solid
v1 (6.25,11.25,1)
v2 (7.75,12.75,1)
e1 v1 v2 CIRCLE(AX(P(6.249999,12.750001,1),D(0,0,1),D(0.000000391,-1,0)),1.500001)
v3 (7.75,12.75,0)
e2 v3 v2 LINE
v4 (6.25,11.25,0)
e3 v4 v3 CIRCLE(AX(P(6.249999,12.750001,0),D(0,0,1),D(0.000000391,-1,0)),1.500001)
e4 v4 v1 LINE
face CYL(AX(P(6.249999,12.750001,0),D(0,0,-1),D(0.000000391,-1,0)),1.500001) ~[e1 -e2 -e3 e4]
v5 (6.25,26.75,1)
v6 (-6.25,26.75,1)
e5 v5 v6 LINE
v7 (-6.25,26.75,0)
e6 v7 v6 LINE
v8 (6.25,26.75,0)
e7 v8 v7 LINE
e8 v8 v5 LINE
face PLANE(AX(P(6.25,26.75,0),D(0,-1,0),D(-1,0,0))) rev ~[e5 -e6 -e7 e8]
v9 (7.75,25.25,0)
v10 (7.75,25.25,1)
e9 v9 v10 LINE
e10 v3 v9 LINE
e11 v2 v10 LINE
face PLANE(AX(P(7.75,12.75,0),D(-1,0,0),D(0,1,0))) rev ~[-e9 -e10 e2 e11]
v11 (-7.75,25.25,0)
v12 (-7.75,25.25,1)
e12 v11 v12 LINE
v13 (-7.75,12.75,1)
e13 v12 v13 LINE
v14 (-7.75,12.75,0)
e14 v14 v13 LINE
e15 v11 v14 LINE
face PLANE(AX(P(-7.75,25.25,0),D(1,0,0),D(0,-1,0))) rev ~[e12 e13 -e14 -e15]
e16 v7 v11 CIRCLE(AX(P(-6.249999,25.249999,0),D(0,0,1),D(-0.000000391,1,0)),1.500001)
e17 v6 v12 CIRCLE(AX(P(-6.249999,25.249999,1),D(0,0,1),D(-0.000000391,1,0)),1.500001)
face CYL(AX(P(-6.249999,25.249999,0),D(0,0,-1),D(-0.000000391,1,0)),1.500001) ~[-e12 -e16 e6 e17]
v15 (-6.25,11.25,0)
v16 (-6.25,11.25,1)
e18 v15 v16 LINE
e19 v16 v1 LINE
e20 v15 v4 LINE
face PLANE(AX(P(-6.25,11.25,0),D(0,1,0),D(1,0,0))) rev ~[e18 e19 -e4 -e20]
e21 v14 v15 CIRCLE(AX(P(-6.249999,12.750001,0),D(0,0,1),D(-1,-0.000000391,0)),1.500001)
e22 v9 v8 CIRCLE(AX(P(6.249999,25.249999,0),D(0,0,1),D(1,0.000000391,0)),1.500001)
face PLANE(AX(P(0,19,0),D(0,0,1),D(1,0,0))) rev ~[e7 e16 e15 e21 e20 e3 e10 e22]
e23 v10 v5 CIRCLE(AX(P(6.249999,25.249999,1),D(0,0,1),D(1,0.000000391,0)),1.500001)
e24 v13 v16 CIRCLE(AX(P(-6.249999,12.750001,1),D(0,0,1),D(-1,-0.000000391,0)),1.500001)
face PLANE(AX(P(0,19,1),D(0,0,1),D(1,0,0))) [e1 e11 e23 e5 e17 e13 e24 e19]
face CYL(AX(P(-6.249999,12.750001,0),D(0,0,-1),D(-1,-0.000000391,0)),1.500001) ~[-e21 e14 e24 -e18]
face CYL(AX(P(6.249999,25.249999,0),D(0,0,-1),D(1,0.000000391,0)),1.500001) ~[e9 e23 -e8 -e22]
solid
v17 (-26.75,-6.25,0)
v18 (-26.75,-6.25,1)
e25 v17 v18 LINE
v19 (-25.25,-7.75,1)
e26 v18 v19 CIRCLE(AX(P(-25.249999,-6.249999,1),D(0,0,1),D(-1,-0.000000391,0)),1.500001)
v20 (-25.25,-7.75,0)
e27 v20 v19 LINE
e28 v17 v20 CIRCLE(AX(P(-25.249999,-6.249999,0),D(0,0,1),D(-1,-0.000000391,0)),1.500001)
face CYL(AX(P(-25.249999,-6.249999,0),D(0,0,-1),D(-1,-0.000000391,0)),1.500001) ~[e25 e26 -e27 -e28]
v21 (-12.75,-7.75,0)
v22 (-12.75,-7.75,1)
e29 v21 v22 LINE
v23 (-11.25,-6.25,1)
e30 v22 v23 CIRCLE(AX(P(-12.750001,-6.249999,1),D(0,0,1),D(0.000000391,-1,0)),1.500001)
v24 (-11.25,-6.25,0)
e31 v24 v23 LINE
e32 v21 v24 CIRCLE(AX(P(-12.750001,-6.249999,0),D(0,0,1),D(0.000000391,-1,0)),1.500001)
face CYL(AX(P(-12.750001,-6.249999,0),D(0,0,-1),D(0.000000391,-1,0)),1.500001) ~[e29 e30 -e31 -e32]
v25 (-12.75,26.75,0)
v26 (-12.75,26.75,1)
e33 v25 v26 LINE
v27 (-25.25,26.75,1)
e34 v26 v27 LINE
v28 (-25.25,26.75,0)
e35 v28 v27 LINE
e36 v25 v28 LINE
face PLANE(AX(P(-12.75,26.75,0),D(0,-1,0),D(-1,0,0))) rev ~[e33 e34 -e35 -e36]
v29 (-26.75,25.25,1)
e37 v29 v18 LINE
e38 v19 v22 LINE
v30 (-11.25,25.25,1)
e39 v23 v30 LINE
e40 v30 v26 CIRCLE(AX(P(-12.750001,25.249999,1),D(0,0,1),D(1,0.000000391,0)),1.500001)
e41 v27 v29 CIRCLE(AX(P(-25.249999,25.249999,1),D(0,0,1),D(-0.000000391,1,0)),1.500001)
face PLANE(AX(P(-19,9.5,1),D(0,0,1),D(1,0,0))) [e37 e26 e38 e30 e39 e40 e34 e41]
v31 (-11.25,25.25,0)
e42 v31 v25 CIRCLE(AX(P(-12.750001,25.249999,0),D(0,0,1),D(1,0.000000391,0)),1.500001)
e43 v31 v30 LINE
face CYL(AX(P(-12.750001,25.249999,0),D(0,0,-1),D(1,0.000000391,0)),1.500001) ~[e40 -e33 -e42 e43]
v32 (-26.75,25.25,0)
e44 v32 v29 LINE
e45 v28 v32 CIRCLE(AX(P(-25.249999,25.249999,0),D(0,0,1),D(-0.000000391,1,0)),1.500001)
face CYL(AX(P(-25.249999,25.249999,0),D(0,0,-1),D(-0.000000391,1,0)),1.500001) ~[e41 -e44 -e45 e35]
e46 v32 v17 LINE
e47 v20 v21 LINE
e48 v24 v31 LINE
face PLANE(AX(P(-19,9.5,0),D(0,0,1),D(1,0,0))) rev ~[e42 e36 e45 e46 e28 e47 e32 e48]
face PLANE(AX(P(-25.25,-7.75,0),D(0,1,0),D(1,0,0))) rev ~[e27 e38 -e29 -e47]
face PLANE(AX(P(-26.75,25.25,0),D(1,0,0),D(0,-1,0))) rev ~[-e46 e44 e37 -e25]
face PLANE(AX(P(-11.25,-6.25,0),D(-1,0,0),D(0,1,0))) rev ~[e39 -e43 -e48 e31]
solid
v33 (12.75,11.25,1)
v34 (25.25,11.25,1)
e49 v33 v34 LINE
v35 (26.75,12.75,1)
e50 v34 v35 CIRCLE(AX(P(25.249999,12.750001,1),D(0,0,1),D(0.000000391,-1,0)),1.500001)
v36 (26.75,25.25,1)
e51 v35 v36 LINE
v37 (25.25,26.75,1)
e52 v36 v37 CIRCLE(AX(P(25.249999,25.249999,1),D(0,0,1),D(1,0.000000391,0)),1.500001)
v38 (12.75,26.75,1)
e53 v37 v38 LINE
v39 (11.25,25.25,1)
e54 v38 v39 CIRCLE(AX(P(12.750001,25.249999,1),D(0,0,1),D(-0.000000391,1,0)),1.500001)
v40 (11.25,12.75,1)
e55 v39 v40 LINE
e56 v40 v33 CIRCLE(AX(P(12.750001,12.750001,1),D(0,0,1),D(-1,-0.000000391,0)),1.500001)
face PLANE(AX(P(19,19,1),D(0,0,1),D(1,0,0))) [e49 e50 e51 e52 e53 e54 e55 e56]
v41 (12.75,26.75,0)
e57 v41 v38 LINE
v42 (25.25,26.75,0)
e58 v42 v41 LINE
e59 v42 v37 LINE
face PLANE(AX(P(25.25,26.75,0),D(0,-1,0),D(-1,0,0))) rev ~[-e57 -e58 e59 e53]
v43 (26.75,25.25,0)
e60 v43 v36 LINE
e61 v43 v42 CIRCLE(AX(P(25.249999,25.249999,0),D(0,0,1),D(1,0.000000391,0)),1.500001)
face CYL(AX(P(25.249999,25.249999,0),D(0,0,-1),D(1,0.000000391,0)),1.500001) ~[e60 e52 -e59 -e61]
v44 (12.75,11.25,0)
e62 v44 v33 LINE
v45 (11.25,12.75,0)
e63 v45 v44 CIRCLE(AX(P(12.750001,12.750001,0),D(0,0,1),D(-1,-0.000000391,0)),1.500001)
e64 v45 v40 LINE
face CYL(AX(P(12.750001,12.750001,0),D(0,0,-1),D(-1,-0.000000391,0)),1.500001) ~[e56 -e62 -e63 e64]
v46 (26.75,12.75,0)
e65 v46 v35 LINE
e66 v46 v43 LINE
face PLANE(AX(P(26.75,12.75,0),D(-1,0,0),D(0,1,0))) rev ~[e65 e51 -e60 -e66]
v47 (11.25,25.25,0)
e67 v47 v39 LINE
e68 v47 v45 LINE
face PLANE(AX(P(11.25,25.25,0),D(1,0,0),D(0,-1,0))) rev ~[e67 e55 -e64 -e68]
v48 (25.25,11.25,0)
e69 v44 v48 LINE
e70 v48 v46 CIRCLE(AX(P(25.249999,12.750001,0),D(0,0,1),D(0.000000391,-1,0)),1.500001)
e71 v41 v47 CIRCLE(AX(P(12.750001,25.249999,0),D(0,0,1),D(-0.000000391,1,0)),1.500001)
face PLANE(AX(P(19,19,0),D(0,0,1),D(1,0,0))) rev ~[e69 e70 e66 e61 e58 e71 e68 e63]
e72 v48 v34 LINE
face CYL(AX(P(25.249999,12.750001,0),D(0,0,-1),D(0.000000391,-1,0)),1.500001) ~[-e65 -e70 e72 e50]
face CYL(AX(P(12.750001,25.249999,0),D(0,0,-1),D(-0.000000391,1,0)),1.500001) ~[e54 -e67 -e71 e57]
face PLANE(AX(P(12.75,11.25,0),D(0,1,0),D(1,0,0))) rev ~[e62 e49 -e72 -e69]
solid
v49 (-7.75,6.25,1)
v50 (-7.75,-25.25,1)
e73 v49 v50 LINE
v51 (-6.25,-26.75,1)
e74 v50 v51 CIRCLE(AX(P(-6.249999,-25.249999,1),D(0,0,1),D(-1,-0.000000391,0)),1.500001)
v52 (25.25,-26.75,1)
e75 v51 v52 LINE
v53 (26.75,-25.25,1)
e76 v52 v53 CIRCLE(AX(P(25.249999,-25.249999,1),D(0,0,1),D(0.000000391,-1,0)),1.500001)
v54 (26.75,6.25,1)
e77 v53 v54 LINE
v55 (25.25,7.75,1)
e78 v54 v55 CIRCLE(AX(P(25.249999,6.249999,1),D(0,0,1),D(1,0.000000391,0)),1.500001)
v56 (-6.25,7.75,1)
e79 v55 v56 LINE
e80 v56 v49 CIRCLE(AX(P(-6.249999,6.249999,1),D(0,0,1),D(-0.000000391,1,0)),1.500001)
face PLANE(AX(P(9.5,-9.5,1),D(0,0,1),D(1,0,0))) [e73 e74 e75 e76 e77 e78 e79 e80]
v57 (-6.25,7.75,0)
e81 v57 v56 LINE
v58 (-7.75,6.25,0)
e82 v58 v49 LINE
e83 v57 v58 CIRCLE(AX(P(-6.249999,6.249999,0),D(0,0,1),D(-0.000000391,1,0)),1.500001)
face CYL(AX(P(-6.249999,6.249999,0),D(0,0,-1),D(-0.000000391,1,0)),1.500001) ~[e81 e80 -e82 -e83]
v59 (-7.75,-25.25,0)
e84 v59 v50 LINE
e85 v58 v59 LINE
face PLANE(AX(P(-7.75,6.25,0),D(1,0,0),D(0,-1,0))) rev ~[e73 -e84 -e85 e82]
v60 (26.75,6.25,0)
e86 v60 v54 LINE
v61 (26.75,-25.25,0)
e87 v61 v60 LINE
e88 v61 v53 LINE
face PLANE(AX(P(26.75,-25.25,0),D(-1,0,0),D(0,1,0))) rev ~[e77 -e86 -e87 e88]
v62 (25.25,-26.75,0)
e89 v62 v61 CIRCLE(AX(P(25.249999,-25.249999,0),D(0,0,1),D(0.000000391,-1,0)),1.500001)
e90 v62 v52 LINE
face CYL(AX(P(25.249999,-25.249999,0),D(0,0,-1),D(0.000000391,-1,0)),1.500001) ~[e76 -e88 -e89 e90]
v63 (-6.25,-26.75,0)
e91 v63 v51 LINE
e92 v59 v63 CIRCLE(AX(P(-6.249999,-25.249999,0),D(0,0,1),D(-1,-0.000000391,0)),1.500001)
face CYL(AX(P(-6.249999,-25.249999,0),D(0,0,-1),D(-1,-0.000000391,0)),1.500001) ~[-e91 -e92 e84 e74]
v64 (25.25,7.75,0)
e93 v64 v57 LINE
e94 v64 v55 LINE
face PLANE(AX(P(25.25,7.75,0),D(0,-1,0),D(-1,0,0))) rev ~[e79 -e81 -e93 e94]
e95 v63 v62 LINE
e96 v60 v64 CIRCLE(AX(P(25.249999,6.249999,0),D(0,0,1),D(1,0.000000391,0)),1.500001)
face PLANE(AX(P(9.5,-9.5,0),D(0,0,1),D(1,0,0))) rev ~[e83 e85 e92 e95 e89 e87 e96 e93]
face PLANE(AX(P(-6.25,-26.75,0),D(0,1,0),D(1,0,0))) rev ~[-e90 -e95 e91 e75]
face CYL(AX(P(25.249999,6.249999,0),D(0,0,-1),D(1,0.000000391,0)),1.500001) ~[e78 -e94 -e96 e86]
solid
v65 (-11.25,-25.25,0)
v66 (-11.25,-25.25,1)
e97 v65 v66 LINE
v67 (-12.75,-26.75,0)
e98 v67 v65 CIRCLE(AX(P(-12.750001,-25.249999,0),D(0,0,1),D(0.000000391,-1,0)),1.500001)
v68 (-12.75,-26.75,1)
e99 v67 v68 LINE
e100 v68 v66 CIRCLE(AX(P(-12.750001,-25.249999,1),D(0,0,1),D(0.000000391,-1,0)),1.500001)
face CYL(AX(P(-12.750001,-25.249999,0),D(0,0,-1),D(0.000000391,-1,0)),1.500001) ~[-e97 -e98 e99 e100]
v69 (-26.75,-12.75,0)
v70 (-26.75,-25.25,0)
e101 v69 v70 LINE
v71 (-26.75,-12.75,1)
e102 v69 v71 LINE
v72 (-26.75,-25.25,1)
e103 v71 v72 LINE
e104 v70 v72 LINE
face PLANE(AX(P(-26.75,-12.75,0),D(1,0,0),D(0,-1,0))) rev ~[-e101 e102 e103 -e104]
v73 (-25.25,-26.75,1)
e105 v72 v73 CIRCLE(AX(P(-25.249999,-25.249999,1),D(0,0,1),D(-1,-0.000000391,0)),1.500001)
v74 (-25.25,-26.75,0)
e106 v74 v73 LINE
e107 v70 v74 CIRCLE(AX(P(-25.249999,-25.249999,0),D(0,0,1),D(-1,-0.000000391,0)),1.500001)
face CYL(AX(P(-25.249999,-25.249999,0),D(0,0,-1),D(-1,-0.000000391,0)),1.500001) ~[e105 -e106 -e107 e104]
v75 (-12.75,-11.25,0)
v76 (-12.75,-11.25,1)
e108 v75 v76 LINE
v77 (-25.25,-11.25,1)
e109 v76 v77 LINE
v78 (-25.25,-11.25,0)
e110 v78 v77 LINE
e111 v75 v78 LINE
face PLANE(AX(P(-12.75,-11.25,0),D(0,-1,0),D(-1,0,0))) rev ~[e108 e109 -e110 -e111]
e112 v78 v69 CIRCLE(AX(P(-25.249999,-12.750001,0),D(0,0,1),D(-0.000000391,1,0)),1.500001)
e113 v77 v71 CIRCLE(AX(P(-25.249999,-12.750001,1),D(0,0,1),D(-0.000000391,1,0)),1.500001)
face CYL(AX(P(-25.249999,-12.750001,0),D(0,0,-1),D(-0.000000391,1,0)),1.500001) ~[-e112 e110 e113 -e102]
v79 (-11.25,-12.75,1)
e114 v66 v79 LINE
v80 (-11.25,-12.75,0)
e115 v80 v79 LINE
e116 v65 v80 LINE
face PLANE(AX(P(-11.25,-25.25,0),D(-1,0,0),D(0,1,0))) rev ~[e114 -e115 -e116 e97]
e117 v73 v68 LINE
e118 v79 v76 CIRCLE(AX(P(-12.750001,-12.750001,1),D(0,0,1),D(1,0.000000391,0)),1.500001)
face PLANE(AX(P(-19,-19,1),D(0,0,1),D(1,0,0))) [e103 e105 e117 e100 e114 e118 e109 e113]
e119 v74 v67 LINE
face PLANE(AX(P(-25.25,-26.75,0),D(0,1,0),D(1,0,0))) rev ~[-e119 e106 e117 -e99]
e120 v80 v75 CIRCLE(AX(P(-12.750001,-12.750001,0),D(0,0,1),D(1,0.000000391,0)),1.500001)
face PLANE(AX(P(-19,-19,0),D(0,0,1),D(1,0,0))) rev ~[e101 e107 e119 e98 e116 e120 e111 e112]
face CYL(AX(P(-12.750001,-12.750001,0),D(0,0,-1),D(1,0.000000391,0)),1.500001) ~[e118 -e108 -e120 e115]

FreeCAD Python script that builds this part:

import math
import FreeCAD as App
import Part
import Sketcher
from FreeCAD import Vector
Q = App.Units.Quantity

doc = App.newDocument("Part")
body = doc.addObject("PartDesign::Body", "Body")
body.AllowCompound = True

sketch1 = doc.addObject("Sketcher::SketchObject", "Sketch")
body.addObject(sketch1)
sketch1.AttachmentSupport = (doc.XY_Plane, [""])
sketch1.MapMode = "FlatFace"
sketch1.addGeometry([
    Part.LineSegment(Vector(-12.8, -11.2, 0), Vector(-25.2, -11.2, 0)),
    Part.ArcOfCircle(Part.Circle(Vector(-25.2, -12.8, 0), Vector(0, 0, 1), 1.5), math.radians(90), math.radians(180)),
    Part.LineSegment(Vector(-26.8, -12.8, 0), Vector(-26.8, -25.2, 0)),
    Part.ArcOfCircle(Part.Circle(Vector(-25.2, -25.2, 0), Vector(0, 0, 1), 1.5), math.radians(-180), math.radians(-90)),
    Part.LineSegment(Vector(-25.2, -26.8, 0), Vector(-12.8, -26.8, 0)),
    Part.ArcOfCircle(Part.Circle(Vector(-12.8, -25.2, 0), Vector(0, 0, 1), 1.5), math.radians(-90), math.radians(0)),
    Part.LineSegment(Vector(-11.2, -25.2, 0), Vector(-11.2, -12.8, 0)),
    Part.ArcOfCircle(Part.Circle(Vector(-12.8, -12.8, 0), Vector(0, 0, 1), 1.5), math.radians(0), math.radians(90)),
    Part.ArcOfCircle(Part.Circle(Vector(-6.2, -25.2, 0), Vector(0, 0, 1), 1.5), math.radians(-180), math.radians(-90)),
    Part.LineSegment(Vector(-6.2, -26.8, 0), Vector(25.2, -26.8, 0)),
    Part.ArcOfCircle(Part.Circle(Vector(25.2, -25.2, 0), Vector(0, 0, 1), 1.5), math.radians(-90), math.radians(0)),
    Part.LineSegment(Vector(26.8, -25.2, 0), Vector(26.8, 6.2, 0)),
    Part.ArcOfCircle(Part.Circle(Vector(25.2, 6.2, 0), Vector(0, 0, 1), 1.5), math.radians(0), math.radians(90)),
    Part.LineSegment(Vector(25.2, 7.8, 0), Vector(-6.2, 7.8, 0)),
    Part.ArcOfCircle(Part.Circle(Vector(-6.2, 6.2, 0), Vector(0, 0, 1), 1.5), math.radians(90), math.radians(180)),
    Part.LineSegment(Vector(-7.8, 6.2, 0), Vector(-7.8, -25.2, 0)),
    Part.ArcOfCircle(Part.Circle(Vector(25.2, 25.2, 0), Vector(0, 0, 1), 1.5), math.radians(0), math.radians(90)),
    Part.LineSegment(Vector(25.2, 26.8, 0), Vector(12.8, 26.8, 0)),
    Part.ArcOfCircle(Part.Circle(Vector(12.8, 25.2, 0), Vector(0, 0, 1), 1.5), math.radians(90), math.radians(180)),
    Part.LineSegment(Vector(11.2, 25.2, 0), Vector(11.2, 12.8, 0)),
    Part.ArcOfCircle(Part.Circle(Vector(12.8, 12.8, 0), Vector(0, 0, 1), 1.5), math.radians(-180), math.radians(-90)),
    Part.LineSegment(Vector(12.8, 11.2, 0), Vector(25.2, 11.2, 0)),
    Part.ArcOfCircle(Part.Circle(Vector(25.2, 12.8, 0), Vector(0, 0, 1), 1.5), math.radians(-90), math.radians(0)),
    Part.LineSegment(Vector(26.8, 12.8, 0), Vector(26.8, 25.2, 0)),
    Part.LineSegment(Vector(-7.8, 25.2, 0), Vector(-7.8, 12.8, 0)),
    Part.ArcOfCircle(Part.Circle(Vector(-6.2, 12.8, 0), Vector(0, 0, 1), 1.5), math.radians(-180), math.radians(-90)),
    Part.LineSegment(Vector(-6.2, 11.2, 0), Vector(6.2, 11.2, 0)),
    Part.ArcOfCircle(Part.Circle(Vector(6.2, 12.8, 0), Vector(0, 0, 1), 1.5), math.radians(-90), math.radians(0)),
    Part.LineSegment(Vector(7.8, 12.8, 0), Vector(7.8, 25.2, 0)),
    Part.ArcOfCircle(Part.Circle(Vector(6.2, 25.2, 0), Vector(0, 0, 1), 1.5), math.radians(0), math.radians(90)),
    Part.LineSegment(Vector(6.2, 26.8, 0), Vector(-6.2, 26.8, 0)),
    Part.ArcOfCircle(Part.Circle(Vector(-6.2, 25.2, 0), Vector(0, 0, 1), 1.5), math.radians(90), math.radians(180)),
    Part.ArcOfCircle(Part.Circle(Vector(-25.2, 25.2, 0), Vector(0, 0, 1), 1.5), math.radians(90), math.radians(180)),
    Part.LineSegment(Vector(-26.8, 25.2, 0), Vector(-26.8, -6.2, 0)),
    Part.ArcOfCircle(Part.Circle(Vector(-25.2, -6.2, 0), Vector(0, 0, 1), 1.5), math.radians(-180), math.radians(-90)),
    Part.LineSegment(Vector(-25.2, -7.8, 0), Vector(-12.8, -7.8, 0)),
    Part.ArcOfCircle(Part.Circle(Vector(-12.8, -6.2, 0), Vector(0, 0, 1), 1.5), math.radians(-90), math.radians(0)),
    Part.LineSegment(Vector(-11.2, -6.2, 0), Vector(-11.2, 25.2, 0)),
    Part.ArcOfCircle(Part.Circle(Vector(-12.8, 25.2, 0), Vector(0, 0, 1), 1.5), math.radians(0), math.radians(90)),
    Part.LineSegment(Vector(-12.8, 26.8, 0), Vector(-25.2, 26.8, 0)),
], False)
sketch1.addConstraint([
    Sketcher.Constraint("Tangent", 0, 2, 1, 1),
    Sketcher.Constraint("Tangent", 1, 2, 2, 1),
    Sketcher.Constraint("Tangent", 2, 2, 3, 1),
    Sketcher.Constraint("Tangent", 3, 2, 4, 1),
    Sketcher.Constraint("Tangent", 4, 2, 5, 1),
    Sketcher.Constraint("Tangent", 5, 2, 6, 1),
    Sketcher.Constraint("Tangent", 6, 2, 7, 1),
    Sketcher.Constraint("Tangent", 7, 2, 0, 1),
    Sketcher.Constraint("Tangent", 8, 2, 9, 1),
    Sketcher.Constraint("Tangent", 9, 2, 10, 1),
    Sketcher.Constraint("Tangent", 10, 2, 11, 1),
    Sketcher.Constraint("Tangent", 11, 2, 12, 1),
    Sketcher.Constraint("Tangent", 12, 2, 13, 1),
    Sketcher.Constraint("Tangent", 13, 2, 14, 1),
    Sketcher.Constraint("Tangent", 14, 2, 15, 1),
    Sketcher.Constraint("Tangent", 15, 2, 8, 1),
    Sketcher.Constraint("Tangent", 16, 2, 17, 1),
    Sketcher.Constraint("Tangent", 17, 2, 18, 1),
    Sketcher.Constraint("Tangent", 18, 2, 19, 1),
    Sketcher.Constraint("Tangent", 19, 2, 20, 1),
    Sketcher.Constraint("Tangent", 20, 2, 21, 1),
    Sketcher.Constraint("Tangent", 21, 2, 22, 1),
    Sketcher.Constraint("Tangent", 22, 2, 23, 1),
    Sketcher.Constraint("Tangent", 23, 2, 16, 1),
    Sketcher.Constraint("Tangent", 24, 2, 25, 1),
    Sketcher.Constraint("Tangent", 25, 2, 26, 1),
    Sketcher.Constraint("Tangent", 26, 2, 27, 1),
    Sketcher.Constraint("Tangent", 27, 2, 28, 1),
    Sketcher.Constraint("Tangent", 28, 2, 29, 1),
    Sketcher.Constraint("Tangent", 29, 2, 30, 1),
    Sketcher.Constraint("Tangent", 30, 2, 31, 1),
    Sketcher.Constraint("Tangent", 31, 2, 24, 1),
    Sketcher.Constraint("Tangent", 32, 2, 33, 1),
    Sketcher.Constraint("Tangent", 33, 2, 34, 1),
    Sketcher.Constraint("Tangent", 34, 2, 35, 1),
    Sketcher.Constraint("Tangent", 35, 2, 36, 1),
    Sketcher.Constraint("Tangent", 36, 2, 37, 1),
    Sketcher.Constraint("Tangent", 37, 2, 38, 1),
    Sketcher.Constraint("Tangent", 38, 2, 39, 1),
    Sketcher.Constraint("Tangent", 39, 2, 32, 1),
    Sketcher.Constraint("Horizontal", 0),
    Sketcher.Constraint("Vertical", 2),
    Sketcher.Constraint("Horizontal", 4),
    Sketcher.Constraint("Vertical", 6),
    Sketcher.Constraint("Horizontal", 9),
    Sketcher.Constraint("Vertical", 11),
    Sketcher.Constraint("Horizontal", 13),
    Sketcher.Constraint("Vertical", 15),
    Sketcher.Constraint("Horizontal", 17),
    Sketcher.Constraint("Vertical", 19),
    Sketcher.Constraint("Horizontal", 21),
    Sketcher.Constraint("Vertical", 23),
    Sketcher.Constraint("Vertical", 24),
    Sketcher.Constraint("Horizontal", 26),
    Sketcher.Constraint("Vertical", 28),
    Sketcher.Constraint("Horizontal", 30),
    Sketcher.Constraint("Vertical", 33),
    Sketcher.Constraint("Horizontal", 35),
    Sketcher.Constraint("Vertical", 37),
    Sketcher.Constraint("Horizontal", 39),
    Sketcher.Constraint("Equal", 1, 3),
    Sketcher.Constraint("Equal", 3, 5),
    Sketcher.Constraint("Equal", 5, 7),
    Sketcher.Constraint("Equal", 7, 8),
    Sketcher.Constraint("Equal", 8, 10),
    Sketcher.Constraint("Equal", 10, 12),
    Sketcher.Constraint("Equal", 12, 14),
    Sketcher.Constraint("Equal", 14, 16),
    Sketcher.Constraint("Equal", 16, 18),
    Sketcher.Constraint("Equal", 18, 20),
    Sketcher.Constraint("Equal", 20, 22),
    Sketcher.Constraint("Equal", 22, 25),
    Sketcher.Constraint("Equal", 25, 27),
    Sketcher.Constraint("Equal", 27, 29),
    Sketcher.Constraint("Equal", 29, 31),
    Sketcher.Constraint("Equal", 31, 32),
    Sketcher.Constraint("Equal", 32, 34),
    Sketcher.Constraint("Equal", 34, 36),
    Sketcher.Constraint("Equal", 36, 38),
    Sketcher.Constraint("Symmetric", 3, 3, 16, 3, -1, 1),
    Sketcher.Constraint("Symmetric", 7, 3, 20, 3, -1, 1),
    Sketcher.Constraint("Symmetric", 8, 3, 29, 3, -1, 1),
    Sketcher.Constraint("Symmetric", 10, 3, 32, 3, -1, 1),
    Sketcher.Constraint("Symmetric", 3, 3, 10, 3, -2),
    Sketcher.Constraint("Horizontal", 22, 3, 25, 3),
    Sketcher.Constraint("Vertical", 14, 3, 25, 3),
    Sketcher.Constraint("Vertical", 7, 3, 36, 3),
    Sketcher.Constraint("Equal", 21, 26),
    Sketcher.Constraint("Equal", 39, 2),
    Sketcher.Constraint("Equal", 13, 11),
    Sketcher.Constraint("Equal", 15, 33),
    Sketcher.Constraint("Radius", 1, Q("1.500001 mm")),
    Sketcher.Constraint("DistanceX", 0, 2, 0, 1, Q("12.5 mm")),
    Sketcher.Constraint("DistanceX", 9, 1, 9, 2, Q("31.5 mm")),
    Sketcher.Constraint("DistanceY", 12, 3, 16, 3, Q("19 mm")),
])
pad1 = doc.addObject("PartDesign::Pad", "Pad")
body.addObject(pad1)
pad1.Profile = sketch1
pad1.Length = 1

doc.recompute()
